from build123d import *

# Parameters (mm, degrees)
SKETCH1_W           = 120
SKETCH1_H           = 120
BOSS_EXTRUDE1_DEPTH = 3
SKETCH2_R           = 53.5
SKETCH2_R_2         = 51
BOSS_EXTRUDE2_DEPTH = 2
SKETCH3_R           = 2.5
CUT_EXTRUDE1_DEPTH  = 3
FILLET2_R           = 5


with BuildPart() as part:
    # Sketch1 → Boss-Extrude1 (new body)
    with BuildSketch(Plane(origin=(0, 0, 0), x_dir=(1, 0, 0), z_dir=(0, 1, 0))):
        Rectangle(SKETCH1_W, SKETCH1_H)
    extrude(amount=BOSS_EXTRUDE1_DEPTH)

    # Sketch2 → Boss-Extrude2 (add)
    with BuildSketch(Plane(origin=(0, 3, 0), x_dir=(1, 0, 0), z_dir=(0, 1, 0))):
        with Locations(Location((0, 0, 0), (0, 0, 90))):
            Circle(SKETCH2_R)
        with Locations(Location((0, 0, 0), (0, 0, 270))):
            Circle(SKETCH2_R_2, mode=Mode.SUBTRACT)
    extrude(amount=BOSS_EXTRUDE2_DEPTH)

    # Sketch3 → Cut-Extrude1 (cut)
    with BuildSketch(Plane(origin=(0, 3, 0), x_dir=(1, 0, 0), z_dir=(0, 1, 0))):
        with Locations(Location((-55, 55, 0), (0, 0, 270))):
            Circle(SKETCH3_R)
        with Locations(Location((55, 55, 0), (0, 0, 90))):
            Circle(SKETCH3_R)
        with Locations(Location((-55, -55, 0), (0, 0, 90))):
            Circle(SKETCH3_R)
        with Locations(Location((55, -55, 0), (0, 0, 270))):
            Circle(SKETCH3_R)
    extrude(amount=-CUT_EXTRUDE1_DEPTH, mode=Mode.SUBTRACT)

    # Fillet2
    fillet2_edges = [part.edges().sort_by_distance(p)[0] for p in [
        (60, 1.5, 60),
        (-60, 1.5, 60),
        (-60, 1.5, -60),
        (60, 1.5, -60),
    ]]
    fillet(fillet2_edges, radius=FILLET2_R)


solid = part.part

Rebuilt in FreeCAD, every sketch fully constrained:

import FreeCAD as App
import Part
import Sketcher

V = App.Vector
Q = App.Units.Quantity


def edges_at(feature, points):
    """Names of the edges that pass closest to the given points."""
    edges = feature.Shape.Edges
    near = lambda p: min(range(len(edges)), key=lambda i: edges[i].distToShape(Part.Vertex(*p))[0])
    return sorted({f"Edge{near(p) + 1}" for p in points})

doc = App.newDocument("Part")
body = doc.addObject("PartDesign::Body", "Body")

# Sketch on XZ plane
sketch1 = body.newObject("Sketcher::SketchObject", "Sketch")
sketch1.AttachmentSupport = (doc.getObject("XZ_Plane"), [""])
sketch1.MapMode = "FlatFace"
sketch1.addGeometry(Part.LineSegment(V(-60, -60, 0), V(-60, 60, 0)), False)
sketch1.addGeometry(Part.LineSegment(V(-60, 60, 0), V(60, 60, 0)), False)
sketch1.addGeometry(Part.LineSegment(V(60, 60, 0), V(60, -60, 0)), False)
sketch1.addGeometry(Part.LineSegment(V(60, -60, 0), V(-60, -60, 0)), False)
sketch1.addConstraint(Sketcher.Constraint("Coincident", 0, 2, 1, 1))
sketch1.addConstraint(Sketcher.Constraint("Coincident", 1, 2, 2, 1))
sketch1.addConstraint(Sketcher.Constraint("Coincident", 2, 2, 3, 1))
sketch1.addConstraint(Sketcher.Constraint("Coincident", 3, 2, 0, 1))
sketch1.addConstraint(Sketcher.Constraint("Vertical", 0))
sketch1.addConstraint(Sketcher.Constraint("Horizontal", 1))
sketch1.addConstraint(Sketcher.Constraint("Vertical", 2))
sketch1.addConstraint(Sketcher.Constraint("Horizontal", 3))
sketch1.addConstraint(Sketcher.Constraint("Symmetric", 0, 2, 2, 2, -1, 1))
sketch1.addConstraint(Sketcher.Constraint("Equal", 3, 0))
sketch1.addConstraint(Sketcher.Constraint("DistanceX", 1, 1, 1, 2, Q("120 mm")))
pad1 = body.newObject("PartDesign::Pad", "Pad")
pad1.Profile = sketch1
pad1.Length = 3
pad1.Reversed = True

# Sketch on XZ plane
sketch2 = body.newObject("Sketcher::SketchObject", "Sketch001")
sketch2.AttachmentSupport = (doc.getObject("XZ_Plane"), [""])
sketch2.MapMode = "FlatFace"
sketch2.AttachmentOffset = App.Placement(V(0, 0, -3), App.Rotation())
sketch2.addGeometry(Part.Circle(V(0, 0, 0), V(0, 0, 1), 54), False)
sketch2.addGeometry(Part.Circle(V(0, 0, 0), V(0, 0, 1), 51), False)
sketch2.addConstraint(Sketcher.Constraint("Coincident", 0, 3, -1, 1))
sketch2.addConstraint(Sketcher.Constraint("Coincident", 1, 3, -1, 1))
sketch2.addConstraint(Sketcher.Constraint("Diameter", 0, Q("107 mm")))
sketch2.addConstraint(Sketcher.Constraint("Diameter", 1, Q("102 mm")))
pad2 = body.newObject("PartDesign::Pad", "Pad001")
pad2.Profile = sketch2
pad2.Length = 2
pad2.Reversed = True

# Sketch on XZ plane
sketch3 = body.newObject("Sketcher::SketchObject", "Sketch002")
sketch3.AttachmentSupport = (doc.getObject("XZ_Plane"), [""])
sketch3.MapMode = "FlatFace"
sketch3.AttachmentOffset = App.Placement(V(0, 0, -3), App.Rotation())
sketch3.addGeometry(Part.Circle(V(-55, -55, 0), V(0, 0, 1), 2.5), False)
sketch3.addGeometry(Part.Circle(V(55, -55, 0), V(0, 0, 1), 2.5), False)
sketch3.addGeometry(Part.Circle(V(-55, 55, 0), V(0, 0, 1), 2.5), False)
sketch3.addGeometry(Part.Circle(V(55, 55, 0), V(0, 0, 1), 2.5), False)
sketch3.addConstraint(Sketcher.Constraint("Equal", 0, 1))
sketch3.addConstraint(Sketcher.Constraint("Equal", 1, 2))
sketch3.addConstraint(Sketcher.Constraint("Equal", 2, 3))
sketch3.addConstraint(Sketcher.Constraint("Symmetric", 1, 3, 2, 3, -1, 1))
sketch3.addConstraint(Sketcher.Constraint("Symmetric", 0, 3, 3, 3, -1, 1))
sketch3.addConstraint(Sketcher.Constraint("Symmetric", 0, 3, 1, 3, -2))
sketch3.addConstraint(Sketcher.Constraint("Diameter", 0, Q("5 mm")))
sketch3.addConstraint(Sketcher.Constraint("DistanceX", 0, 3, -1, 1, Q("55 mm")))
sketch3.addConstraint(Sketcher.Constraint("DistanceY", 0, 3, -1, 1, Q("55 mm")))
pocket1 = body.newObject("PartDesign::Pocket", "Pocket")
pocket1.Profile = sketch3
pocket1.Length = 3
pocket1.Reversed = True
doc.recompute()

fillet = body.newObject("PartDesign::Fillet", "Fillet")
fillet.Base = (pocket1, edges_at(pocket1, [
    (60, 1.5, 60),
    (-60, 1.5, 60),
    (-60, 1.5, -60),
    (60, 1.5, -60),
]))
fillet.Radius = 5

doc.recompute()
